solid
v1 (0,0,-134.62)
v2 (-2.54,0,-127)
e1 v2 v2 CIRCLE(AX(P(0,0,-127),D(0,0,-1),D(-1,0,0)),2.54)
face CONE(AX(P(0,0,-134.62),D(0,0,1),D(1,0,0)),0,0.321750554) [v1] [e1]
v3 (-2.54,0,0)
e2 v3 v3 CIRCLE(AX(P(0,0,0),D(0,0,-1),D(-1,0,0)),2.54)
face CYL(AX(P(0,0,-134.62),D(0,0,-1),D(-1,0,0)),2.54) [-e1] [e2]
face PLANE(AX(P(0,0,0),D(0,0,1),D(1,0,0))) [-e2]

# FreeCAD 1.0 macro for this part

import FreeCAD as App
import Part
import Sketcher
Q = App.Units.Quantity

doc = App.newDocument("Part")
body = doc.addObject("PartDesign::Body", "Body")

# Sketch on XZ plane
sketch1 = body.newObject("Sketcher::SketchObject", "Sketch")
sketch1.AttachmentSupport = (doc.getObject("XZ_Plane"), [""])
sketch1.MapMode = "FlatFace"
sketch1.addGeometry(Part.LineSegment(App.Vector(0, 0, 0), App.Vector(2.5, 0, 0)), False)
sketch1.addGeometry(Part.LineSegment(App.Vector(2.5, 0, 0), App.Vector(2.5, -127, 0)), False)
sketch1.addGeometry(Part.LineSegment(App.Vector(2.5, -127, 0), App.Vector(0, -134.6, 0)), False)
sketch1.addGeometry(Part.LineSegment(App.Vector(0, -134.6, 0), App.Vector(0, 0, 0)), False)
sketch1.addConstraint(Sketcher.Constraint("Coincident", 0, 2, 1, 1))
sketch1.addConstraint(Sketcher.Constraint("Coincident", 1, 2, 2, 1))
sketch1.addConstraint(Sketcher.Constraint("Coincident", 2, 2, 3, 1))
sketch1.addConstraint(Sketcher.Constraint("Coincident", 3, 2, 0, 1))
sketch1.addConstraint(Sketcher.Constraint("Horizontal", 0))
sketch1.addConstraint(Sketcher.Constraint("Vertical", 1))
sketch1.addConstraint(Sketcher.Constraint("Vertical", 3))
sketch1.addConstraint(Sketcher.Constraint("Coincident", 3, 2, -1, 1))
sketch1.addConstraint(Sketcher.Constraint("DistanceY", 1, 2, 1, 1, Q("5 in")))
sketch1.addConstraint(Sketcher.Constraint("DistanceX", 0, 1, 0, 2, Q("0.1 in")))
sketch1.addConstraint(Sketcher.Constraint("DistanceY", 3, 1, 3, 2, Q("5.3 in")))
revolution = body.newObject("PartDesign::Revolution", "Revolution")
revolution.Profile = sketch1
revolution.ReferenceAxis = (sketch1, ["V_Axis"])
revolution.Angle = 360

doc.recompute()
